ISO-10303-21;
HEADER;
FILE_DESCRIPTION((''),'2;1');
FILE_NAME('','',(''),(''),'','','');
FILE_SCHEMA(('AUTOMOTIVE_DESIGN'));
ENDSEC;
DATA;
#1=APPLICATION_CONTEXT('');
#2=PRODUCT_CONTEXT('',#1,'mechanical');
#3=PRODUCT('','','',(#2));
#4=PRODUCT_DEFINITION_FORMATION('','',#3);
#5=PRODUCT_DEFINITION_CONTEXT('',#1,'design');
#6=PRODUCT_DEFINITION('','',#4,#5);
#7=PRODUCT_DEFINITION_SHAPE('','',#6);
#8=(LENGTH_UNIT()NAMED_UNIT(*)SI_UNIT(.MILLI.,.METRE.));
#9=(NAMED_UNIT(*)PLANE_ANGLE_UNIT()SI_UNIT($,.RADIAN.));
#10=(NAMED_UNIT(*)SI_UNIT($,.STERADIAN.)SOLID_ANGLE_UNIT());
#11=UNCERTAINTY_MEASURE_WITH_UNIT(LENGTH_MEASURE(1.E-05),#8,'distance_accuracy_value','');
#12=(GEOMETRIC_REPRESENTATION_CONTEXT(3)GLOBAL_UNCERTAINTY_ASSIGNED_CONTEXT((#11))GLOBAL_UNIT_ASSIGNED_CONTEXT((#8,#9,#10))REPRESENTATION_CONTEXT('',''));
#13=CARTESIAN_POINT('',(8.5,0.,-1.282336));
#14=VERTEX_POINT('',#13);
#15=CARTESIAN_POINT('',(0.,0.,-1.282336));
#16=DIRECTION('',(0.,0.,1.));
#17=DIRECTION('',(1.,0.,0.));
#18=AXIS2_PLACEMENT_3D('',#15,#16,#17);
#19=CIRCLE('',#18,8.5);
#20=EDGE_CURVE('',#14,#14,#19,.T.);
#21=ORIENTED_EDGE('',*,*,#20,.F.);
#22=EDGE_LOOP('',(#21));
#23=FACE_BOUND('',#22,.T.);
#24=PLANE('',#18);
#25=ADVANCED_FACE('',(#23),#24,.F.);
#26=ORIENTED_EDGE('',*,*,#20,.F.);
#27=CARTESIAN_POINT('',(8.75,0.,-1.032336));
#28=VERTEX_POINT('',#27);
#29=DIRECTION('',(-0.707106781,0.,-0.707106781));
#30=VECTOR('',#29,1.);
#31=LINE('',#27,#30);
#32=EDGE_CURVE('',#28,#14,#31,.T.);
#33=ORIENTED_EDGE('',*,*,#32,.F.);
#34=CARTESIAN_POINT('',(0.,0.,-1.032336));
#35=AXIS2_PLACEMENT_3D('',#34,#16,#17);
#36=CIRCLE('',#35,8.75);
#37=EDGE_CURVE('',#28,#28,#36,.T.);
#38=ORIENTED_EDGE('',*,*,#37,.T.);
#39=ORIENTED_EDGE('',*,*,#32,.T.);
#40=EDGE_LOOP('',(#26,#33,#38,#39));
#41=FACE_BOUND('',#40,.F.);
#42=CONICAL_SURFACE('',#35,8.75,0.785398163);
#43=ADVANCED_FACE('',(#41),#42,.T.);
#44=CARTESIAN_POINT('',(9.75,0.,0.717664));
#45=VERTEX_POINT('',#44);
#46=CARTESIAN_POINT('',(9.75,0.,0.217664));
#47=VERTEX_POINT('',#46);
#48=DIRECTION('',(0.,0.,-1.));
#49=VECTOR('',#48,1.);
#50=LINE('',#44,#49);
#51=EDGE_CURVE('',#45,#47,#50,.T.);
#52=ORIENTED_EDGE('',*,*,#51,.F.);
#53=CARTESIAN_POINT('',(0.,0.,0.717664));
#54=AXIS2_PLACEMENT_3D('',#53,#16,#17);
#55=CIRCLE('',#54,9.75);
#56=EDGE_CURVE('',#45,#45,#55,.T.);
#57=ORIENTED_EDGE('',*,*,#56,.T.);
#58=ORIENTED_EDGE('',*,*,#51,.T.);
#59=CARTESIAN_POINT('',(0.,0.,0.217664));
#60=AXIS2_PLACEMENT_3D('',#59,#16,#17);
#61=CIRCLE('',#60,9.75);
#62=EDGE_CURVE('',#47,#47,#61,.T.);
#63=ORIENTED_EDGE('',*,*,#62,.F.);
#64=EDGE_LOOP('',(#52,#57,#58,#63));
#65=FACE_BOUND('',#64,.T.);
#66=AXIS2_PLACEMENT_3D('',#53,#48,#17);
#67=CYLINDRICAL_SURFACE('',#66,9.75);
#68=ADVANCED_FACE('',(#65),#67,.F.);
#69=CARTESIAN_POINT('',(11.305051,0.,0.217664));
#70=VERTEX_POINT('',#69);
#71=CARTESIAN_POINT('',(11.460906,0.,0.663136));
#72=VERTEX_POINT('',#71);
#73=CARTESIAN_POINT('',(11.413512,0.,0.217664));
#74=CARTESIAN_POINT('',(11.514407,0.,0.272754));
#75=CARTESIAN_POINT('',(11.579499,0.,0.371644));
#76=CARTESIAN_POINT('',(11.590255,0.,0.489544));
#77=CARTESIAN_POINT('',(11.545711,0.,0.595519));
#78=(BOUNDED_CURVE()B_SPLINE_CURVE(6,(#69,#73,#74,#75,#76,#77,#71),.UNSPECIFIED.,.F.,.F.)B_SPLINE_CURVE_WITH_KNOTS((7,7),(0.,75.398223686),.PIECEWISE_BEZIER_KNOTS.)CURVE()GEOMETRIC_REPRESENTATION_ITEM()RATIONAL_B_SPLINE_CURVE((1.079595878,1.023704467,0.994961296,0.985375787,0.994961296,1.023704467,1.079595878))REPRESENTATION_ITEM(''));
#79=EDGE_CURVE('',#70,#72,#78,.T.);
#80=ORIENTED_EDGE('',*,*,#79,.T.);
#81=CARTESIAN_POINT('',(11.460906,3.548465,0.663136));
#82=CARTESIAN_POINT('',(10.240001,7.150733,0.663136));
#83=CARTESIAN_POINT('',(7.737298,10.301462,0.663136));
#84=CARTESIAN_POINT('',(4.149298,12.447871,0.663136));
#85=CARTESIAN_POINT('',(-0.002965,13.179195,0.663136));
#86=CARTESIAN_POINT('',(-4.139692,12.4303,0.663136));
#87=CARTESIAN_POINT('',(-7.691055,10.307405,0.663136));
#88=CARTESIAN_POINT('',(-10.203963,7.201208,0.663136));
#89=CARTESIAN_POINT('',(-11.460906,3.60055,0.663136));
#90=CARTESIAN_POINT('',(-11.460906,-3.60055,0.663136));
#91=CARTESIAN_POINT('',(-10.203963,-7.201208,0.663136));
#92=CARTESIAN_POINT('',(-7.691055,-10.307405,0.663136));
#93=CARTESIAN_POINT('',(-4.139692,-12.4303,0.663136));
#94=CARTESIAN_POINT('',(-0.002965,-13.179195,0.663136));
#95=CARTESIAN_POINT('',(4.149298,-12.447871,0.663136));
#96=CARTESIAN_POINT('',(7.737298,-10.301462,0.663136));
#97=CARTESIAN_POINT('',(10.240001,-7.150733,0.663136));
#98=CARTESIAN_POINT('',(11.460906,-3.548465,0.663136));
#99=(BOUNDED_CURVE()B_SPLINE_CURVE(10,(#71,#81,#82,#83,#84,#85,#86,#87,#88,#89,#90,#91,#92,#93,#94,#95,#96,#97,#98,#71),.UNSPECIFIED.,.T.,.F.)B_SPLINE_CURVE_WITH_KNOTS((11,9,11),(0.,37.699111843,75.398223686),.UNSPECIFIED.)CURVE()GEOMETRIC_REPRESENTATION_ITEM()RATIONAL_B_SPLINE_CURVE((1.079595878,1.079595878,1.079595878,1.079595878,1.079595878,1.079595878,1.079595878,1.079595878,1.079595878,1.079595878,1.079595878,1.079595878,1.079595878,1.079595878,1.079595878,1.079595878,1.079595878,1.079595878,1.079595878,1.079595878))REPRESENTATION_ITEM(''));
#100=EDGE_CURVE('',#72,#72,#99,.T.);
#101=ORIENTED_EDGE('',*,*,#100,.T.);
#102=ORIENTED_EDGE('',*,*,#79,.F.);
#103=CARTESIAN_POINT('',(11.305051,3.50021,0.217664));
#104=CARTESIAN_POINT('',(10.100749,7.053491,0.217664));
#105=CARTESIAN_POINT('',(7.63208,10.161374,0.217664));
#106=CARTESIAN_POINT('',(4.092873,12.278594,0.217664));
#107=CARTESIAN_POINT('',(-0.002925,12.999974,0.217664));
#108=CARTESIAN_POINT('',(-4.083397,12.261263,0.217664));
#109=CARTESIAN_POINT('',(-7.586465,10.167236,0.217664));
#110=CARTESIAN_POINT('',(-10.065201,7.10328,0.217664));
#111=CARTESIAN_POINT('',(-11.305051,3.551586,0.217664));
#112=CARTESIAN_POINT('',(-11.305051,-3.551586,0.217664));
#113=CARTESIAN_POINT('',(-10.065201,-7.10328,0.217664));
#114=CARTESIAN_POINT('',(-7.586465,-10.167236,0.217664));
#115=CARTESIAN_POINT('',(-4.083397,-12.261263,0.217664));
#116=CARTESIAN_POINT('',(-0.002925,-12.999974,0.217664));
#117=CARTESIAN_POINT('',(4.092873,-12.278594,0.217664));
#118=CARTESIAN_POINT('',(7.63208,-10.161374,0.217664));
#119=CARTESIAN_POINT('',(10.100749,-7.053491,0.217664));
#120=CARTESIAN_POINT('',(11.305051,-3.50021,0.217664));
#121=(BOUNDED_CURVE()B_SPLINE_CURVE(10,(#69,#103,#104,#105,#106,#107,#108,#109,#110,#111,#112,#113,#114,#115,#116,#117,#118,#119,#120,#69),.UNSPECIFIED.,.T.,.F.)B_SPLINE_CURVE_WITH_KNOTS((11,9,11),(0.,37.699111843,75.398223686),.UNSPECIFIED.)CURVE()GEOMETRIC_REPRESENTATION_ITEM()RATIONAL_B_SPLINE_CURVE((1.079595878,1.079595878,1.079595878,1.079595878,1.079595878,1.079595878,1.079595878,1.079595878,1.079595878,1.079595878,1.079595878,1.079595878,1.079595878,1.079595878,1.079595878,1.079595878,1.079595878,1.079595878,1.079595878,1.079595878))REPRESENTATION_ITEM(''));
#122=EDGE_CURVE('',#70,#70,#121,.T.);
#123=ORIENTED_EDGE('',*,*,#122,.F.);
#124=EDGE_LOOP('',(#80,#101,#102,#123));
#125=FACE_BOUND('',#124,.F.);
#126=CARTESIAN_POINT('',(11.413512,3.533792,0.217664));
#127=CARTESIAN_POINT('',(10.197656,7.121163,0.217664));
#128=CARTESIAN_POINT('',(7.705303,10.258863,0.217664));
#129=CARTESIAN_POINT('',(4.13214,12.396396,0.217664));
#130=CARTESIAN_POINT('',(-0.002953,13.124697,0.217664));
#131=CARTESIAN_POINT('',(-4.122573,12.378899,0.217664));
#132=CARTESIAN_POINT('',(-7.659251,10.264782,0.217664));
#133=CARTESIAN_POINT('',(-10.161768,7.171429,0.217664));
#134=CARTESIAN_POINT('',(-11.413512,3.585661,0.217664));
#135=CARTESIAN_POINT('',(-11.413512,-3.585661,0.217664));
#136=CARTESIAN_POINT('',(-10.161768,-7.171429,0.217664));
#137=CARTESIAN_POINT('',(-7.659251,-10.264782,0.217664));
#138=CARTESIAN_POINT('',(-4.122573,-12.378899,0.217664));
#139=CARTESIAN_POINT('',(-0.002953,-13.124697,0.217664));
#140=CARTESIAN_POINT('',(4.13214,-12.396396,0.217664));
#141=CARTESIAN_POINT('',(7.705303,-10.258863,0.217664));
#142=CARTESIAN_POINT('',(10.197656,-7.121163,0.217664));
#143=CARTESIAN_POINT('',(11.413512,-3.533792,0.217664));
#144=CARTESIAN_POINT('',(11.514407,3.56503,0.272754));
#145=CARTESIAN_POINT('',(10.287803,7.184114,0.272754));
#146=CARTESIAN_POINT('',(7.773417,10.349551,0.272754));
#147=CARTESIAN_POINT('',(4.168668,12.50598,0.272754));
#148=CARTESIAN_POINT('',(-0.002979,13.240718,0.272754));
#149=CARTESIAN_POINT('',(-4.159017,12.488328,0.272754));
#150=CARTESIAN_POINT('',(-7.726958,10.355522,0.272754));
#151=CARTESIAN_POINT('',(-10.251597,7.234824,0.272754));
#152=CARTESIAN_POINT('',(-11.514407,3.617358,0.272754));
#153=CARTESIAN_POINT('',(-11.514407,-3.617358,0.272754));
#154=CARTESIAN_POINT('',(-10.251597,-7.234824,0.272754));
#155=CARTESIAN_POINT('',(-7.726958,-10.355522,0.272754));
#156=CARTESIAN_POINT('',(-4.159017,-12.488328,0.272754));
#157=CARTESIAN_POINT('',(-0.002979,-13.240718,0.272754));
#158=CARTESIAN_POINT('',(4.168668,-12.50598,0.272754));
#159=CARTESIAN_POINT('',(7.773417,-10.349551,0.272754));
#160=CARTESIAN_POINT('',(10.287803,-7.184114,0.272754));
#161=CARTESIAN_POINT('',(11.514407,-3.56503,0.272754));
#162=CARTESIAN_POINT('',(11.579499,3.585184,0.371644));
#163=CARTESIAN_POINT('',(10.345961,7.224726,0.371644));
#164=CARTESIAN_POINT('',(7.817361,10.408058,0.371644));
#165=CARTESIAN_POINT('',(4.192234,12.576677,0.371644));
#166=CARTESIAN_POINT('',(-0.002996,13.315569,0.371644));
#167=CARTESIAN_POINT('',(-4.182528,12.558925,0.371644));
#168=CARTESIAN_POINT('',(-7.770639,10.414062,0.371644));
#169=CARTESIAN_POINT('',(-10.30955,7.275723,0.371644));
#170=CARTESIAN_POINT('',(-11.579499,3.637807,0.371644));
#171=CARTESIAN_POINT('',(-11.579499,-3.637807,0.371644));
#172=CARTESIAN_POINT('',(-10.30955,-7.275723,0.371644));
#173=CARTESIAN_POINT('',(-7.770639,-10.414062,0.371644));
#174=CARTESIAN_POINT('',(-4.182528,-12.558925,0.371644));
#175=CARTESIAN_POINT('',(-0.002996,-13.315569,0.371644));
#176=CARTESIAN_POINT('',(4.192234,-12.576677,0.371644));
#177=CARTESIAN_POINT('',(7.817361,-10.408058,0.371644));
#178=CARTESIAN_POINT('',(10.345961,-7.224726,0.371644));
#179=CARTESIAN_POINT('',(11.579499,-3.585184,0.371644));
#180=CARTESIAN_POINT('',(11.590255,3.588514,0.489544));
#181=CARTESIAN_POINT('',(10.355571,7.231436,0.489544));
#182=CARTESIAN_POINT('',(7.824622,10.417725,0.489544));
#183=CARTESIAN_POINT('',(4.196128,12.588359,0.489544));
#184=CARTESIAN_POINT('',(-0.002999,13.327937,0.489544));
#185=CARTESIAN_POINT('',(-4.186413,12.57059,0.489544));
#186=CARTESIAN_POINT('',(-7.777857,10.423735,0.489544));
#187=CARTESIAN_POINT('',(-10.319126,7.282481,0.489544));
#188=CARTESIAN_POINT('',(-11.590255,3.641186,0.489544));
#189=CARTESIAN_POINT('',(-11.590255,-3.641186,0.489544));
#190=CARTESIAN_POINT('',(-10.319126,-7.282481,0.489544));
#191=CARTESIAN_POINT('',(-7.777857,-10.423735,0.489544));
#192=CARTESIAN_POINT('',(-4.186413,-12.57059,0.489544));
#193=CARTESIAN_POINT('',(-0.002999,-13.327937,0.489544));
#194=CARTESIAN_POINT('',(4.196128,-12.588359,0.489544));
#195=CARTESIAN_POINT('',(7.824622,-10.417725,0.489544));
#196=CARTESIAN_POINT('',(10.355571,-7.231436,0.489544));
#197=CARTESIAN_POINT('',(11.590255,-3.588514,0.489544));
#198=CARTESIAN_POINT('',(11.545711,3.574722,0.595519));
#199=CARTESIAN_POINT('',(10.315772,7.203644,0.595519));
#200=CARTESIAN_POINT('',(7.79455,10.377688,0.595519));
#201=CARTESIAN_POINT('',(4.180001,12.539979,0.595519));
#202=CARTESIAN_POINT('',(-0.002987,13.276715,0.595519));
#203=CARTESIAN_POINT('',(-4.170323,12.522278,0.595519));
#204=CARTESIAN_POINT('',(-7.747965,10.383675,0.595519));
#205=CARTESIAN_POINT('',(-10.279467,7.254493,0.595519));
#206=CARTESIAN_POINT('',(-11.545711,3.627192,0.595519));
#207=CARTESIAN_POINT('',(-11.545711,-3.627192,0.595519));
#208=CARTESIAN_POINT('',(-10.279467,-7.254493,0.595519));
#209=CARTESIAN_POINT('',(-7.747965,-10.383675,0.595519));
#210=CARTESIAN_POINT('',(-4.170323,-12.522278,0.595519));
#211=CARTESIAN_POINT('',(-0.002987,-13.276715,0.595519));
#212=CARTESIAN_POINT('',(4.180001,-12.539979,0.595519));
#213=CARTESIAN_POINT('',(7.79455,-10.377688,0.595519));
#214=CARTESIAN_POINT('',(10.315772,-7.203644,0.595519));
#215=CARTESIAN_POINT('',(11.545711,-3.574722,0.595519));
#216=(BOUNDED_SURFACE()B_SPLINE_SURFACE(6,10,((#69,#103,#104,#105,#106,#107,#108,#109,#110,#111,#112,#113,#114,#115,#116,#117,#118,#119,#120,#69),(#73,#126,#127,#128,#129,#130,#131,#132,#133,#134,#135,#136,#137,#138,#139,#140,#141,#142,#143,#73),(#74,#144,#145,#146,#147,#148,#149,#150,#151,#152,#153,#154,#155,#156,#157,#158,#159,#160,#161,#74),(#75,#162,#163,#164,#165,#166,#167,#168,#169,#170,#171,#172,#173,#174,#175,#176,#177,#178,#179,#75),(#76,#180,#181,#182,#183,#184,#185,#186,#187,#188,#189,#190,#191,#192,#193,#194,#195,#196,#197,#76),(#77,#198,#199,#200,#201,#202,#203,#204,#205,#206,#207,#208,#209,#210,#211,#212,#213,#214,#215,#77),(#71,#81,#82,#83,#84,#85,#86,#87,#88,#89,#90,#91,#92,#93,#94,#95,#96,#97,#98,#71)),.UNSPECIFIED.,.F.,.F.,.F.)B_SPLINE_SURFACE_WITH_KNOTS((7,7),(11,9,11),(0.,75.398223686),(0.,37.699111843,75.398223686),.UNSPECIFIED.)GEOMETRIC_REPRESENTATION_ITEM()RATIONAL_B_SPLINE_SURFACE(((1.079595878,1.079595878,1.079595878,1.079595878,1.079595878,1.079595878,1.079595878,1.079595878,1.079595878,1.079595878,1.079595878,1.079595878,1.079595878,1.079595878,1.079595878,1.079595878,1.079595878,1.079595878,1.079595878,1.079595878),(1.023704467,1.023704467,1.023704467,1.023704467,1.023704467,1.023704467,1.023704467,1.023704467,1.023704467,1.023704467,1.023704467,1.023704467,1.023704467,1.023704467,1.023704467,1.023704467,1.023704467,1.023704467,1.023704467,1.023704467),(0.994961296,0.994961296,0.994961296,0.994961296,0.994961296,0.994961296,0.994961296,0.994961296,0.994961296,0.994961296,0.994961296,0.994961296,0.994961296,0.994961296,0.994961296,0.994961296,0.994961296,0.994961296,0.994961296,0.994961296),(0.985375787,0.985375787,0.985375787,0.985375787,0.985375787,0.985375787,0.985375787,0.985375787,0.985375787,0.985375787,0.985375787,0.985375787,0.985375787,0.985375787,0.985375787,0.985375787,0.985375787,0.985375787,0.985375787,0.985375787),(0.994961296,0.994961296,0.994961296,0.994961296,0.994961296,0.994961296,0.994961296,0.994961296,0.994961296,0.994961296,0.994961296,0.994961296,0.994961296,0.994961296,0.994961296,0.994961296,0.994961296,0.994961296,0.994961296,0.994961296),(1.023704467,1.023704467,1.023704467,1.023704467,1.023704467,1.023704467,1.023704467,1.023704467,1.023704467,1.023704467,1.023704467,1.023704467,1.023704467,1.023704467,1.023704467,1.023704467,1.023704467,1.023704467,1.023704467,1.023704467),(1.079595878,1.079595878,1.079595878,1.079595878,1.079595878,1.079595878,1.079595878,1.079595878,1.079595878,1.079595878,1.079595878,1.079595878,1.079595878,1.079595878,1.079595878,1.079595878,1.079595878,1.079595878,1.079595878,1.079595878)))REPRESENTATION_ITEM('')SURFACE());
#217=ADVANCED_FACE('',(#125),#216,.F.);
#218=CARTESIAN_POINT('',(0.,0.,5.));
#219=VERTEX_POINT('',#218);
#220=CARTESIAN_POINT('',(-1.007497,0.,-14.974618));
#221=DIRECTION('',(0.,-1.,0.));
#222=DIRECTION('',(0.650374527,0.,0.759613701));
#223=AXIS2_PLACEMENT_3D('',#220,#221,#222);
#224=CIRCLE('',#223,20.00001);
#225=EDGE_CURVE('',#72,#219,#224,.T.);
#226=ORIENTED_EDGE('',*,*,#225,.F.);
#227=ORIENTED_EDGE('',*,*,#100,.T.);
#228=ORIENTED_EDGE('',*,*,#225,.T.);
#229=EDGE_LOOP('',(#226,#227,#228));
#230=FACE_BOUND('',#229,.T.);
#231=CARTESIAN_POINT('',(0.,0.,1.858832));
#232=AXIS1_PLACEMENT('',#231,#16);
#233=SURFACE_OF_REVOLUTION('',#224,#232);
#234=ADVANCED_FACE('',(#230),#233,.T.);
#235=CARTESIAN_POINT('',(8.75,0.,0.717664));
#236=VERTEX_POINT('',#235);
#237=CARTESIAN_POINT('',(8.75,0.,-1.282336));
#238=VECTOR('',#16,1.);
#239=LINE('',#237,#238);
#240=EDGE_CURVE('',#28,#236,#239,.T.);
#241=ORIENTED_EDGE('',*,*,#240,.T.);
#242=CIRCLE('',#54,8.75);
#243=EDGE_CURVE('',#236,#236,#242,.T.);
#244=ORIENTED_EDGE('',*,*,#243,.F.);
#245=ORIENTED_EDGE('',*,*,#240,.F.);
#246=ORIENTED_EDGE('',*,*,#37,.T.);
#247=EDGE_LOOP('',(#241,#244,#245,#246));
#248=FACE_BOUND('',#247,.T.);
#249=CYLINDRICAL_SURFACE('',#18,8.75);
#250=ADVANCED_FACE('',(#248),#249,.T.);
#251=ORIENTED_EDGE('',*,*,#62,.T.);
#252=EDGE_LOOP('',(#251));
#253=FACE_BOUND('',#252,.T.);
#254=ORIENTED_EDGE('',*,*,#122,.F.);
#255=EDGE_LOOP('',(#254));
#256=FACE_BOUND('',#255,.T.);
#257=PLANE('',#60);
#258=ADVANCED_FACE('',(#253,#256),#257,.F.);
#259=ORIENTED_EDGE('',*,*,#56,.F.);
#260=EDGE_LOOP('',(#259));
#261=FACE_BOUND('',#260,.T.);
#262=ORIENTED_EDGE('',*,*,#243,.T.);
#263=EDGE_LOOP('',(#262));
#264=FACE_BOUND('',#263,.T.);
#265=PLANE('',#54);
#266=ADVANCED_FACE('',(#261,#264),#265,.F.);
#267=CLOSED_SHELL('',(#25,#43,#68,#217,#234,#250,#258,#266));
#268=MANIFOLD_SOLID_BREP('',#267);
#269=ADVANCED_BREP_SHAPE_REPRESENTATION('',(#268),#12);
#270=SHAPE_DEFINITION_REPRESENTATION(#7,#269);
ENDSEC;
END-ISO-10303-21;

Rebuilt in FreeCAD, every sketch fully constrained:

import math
import FreeCAD as App
import Part
import Sketcher
Q = App.Units.Quantity


def edges_at(feature, points):
    """Names of the edges that pass closest to the given points."""
    edges = feature.Shape.Edges
    near = lambda p: min(range(len(edges)), key=lambda i: edges[i].distToShape(Part.Vertex(*p))[0])
    return sorted({f"Edge{near(p) + 1}" for p in points})

doc = App.newDocument("Part")
params = doc.addObject("Spreadsheet::Sheet", "Params")
for row, (alias, value) in enumerate([
    ("sketch1_width", "1 mm"),
    ("sketch1_height", "2 mm"),
    ("sketch1_height2", "0.5 mm"),
    ("sketch1_width2", "2.25 mm"),
    ("revolution_angle", "360 deg"),
    ("fillet_radius", "0.25 mm"),
    ("chamfer_size", "0.25 mm"),
], start=1):
    params.set(f"A{row}", alias)
    params.set(f"B{row}", "=" + value)
    params.setAlias(f"B{row}", alias)

body = doc.addObject("PartDesign::Body", "Body")

sketch1 = body.newObject("Sketcher::SketchObject", "Sketch")
sketch1.AttachmentSupport = (doc.getObject("XZ_Plane"), [""])
sketch1.MapMode = "FlatFace"
sketch1.addGeometry(Part.LineSegment(App.Vector(8.8, -1.3, 0), App.Vector(8.8, 0.7, 0)), False)
sketch1.addGeometry(Part.LineSegment(App.Vector(8.8, 0.7, 0), App.Vector(9.8, 0.7, 0)), False)
sketch1.addGeometry(Part.LineSegment(App.Vector(9.8, 0.7, 0), App.Vector(9.8, 0.2, 0)), False)
sketch1.addGeometry(Part.LineSegment(App.Vector(9.8, 0.2, 0), App.Vector(12, 0.2, 0)), False)
sketch1.addGeometry(Part.ArcOfCircle(Part.Circle(App.Vector(-1, -15, 0), App.Vector(0, 0, 1), 20), math.radians(49), math.radians(87)), False)
sketch1.addGeometry(Part.LineSegment(App.Vector(0, 5, 0), App.Vector(0, -1.3, 0)), False)
sketch1.addGeometry(Part.LineSegment(App.Vector(0, -1.3, 0), App.Vector(8.8, -1.3, 0)), False)
sketch1.addConstraint(Sketcher.Constraint("Coincident", 0, 2, 1, 1))
sketch1.addConstraint(Sketcher.Constraint("Coincident", 1, 2, 2, 1))
sketch1.addConstraint(Sketcher.Constraint("Coincident", 2, 2, 3, 1))
sketch1.addConstraint(Sketcher.Constraint("Coincident", 3, 2, 4, 1))
sketch1.addConstraint(Sketcher.Constraint("Coincident", 4, 2, 5, 1))
sketch1.addConstraint(Sketcher.Constraint("Coincident", 5, 2, 6, 1))
sketch1.addConstraint(Sketcher.Constraint("Coincident", 6, 2, 0, 1))
sketch1.addConstraint(Sketcher.Constraint("Vertical", 0))
sketch1.addConstraint(Sketcher.Constraint("Horizontal", 1))
sketch1.addConstraint(Sketcher.Constraint("Vertical", 2))
sketch1.addConstraint(Sketcher.Constraint("Horizontal", 3))
sketch1.addConstraint(Sketcher.Constraint("Vertical", 5))
sketch1.addConstraint(Sketcher.Constraint("Horizontal", 6))
sketch1.addConstraint(Sketcher.Constraint("PointOnObject", 4, 2, -2))
sketch1.addConstraint(Sketcher.Constraint("DistanceX", 1, 1, 1, 2, Q("1 mm")))
sketch1.addConstraint(Sketcher.Constraint("DistanceY", 0, 1, 0, 2, Q("2 mm")))
sketch1.addConstraint(Sketcher.Constraint("DistanceY", 2, 2, 2, 1, Q("0.5 mm")))
sketch1.addConstraint(Sketcher.Constraint("DistanceX", -1, 1, 3, 2, Q("12 mm")))
sketch1.addConstraint(Sketcher.Constraint("DistanceY", -1, 1, 4, 2, Q("5 mm")))
sketch1.addConstraint(Sketcher.Constraint("DistanceX", 3, 1, 3, 2, Q("2.25 mm")))
sketch1.addConstraint(Sketcher.Constraint("Radius", 4, Q("20.00001 mm")))
sketch1.addConstraint(Sketcher.Constraint("DistanceY", 5, 2, 5, 1, Q("6.282336 mm")))
sketch1.setExpression("Constraints[14]", "Params.sketch1_width")
sketch1.setExpression("Constraints[15]", "Params.sketch1_height")
sketch1.setExpression("Constraints[16]", "Params.sketch1_height2")
sketch1.setExpression("Constraints[19]", "Params.sketch1_width2")
revolution = body.newObject("PartDesign::Revolution", "Revolution")
revolution.Profile = sketch1
revolution.ReferenceAxis = (sketch1, ["V_Axis"])
revolution.setExpression("Angle", "Params.revolution_angle")
doc.recompute()

fillet = body.newObject("PartDesign::Fillet", "Fillet")
fillet.Base = (revolution, edges_at(revolution, [(-12, 0, 0.218)]))
fillet.setExpression("Radius", "Params.fillet_radius")
doc.recompute()

chamfer = body.newObject("PartDesign::Chamfer", "Chamfer")
chamfer.Base = (fillet, edges_at(fillet, [(-8.75, 0, -1.282)]))
chamfer.setExpression("Size", "Params.chamfer_size")

doc.recompute()
